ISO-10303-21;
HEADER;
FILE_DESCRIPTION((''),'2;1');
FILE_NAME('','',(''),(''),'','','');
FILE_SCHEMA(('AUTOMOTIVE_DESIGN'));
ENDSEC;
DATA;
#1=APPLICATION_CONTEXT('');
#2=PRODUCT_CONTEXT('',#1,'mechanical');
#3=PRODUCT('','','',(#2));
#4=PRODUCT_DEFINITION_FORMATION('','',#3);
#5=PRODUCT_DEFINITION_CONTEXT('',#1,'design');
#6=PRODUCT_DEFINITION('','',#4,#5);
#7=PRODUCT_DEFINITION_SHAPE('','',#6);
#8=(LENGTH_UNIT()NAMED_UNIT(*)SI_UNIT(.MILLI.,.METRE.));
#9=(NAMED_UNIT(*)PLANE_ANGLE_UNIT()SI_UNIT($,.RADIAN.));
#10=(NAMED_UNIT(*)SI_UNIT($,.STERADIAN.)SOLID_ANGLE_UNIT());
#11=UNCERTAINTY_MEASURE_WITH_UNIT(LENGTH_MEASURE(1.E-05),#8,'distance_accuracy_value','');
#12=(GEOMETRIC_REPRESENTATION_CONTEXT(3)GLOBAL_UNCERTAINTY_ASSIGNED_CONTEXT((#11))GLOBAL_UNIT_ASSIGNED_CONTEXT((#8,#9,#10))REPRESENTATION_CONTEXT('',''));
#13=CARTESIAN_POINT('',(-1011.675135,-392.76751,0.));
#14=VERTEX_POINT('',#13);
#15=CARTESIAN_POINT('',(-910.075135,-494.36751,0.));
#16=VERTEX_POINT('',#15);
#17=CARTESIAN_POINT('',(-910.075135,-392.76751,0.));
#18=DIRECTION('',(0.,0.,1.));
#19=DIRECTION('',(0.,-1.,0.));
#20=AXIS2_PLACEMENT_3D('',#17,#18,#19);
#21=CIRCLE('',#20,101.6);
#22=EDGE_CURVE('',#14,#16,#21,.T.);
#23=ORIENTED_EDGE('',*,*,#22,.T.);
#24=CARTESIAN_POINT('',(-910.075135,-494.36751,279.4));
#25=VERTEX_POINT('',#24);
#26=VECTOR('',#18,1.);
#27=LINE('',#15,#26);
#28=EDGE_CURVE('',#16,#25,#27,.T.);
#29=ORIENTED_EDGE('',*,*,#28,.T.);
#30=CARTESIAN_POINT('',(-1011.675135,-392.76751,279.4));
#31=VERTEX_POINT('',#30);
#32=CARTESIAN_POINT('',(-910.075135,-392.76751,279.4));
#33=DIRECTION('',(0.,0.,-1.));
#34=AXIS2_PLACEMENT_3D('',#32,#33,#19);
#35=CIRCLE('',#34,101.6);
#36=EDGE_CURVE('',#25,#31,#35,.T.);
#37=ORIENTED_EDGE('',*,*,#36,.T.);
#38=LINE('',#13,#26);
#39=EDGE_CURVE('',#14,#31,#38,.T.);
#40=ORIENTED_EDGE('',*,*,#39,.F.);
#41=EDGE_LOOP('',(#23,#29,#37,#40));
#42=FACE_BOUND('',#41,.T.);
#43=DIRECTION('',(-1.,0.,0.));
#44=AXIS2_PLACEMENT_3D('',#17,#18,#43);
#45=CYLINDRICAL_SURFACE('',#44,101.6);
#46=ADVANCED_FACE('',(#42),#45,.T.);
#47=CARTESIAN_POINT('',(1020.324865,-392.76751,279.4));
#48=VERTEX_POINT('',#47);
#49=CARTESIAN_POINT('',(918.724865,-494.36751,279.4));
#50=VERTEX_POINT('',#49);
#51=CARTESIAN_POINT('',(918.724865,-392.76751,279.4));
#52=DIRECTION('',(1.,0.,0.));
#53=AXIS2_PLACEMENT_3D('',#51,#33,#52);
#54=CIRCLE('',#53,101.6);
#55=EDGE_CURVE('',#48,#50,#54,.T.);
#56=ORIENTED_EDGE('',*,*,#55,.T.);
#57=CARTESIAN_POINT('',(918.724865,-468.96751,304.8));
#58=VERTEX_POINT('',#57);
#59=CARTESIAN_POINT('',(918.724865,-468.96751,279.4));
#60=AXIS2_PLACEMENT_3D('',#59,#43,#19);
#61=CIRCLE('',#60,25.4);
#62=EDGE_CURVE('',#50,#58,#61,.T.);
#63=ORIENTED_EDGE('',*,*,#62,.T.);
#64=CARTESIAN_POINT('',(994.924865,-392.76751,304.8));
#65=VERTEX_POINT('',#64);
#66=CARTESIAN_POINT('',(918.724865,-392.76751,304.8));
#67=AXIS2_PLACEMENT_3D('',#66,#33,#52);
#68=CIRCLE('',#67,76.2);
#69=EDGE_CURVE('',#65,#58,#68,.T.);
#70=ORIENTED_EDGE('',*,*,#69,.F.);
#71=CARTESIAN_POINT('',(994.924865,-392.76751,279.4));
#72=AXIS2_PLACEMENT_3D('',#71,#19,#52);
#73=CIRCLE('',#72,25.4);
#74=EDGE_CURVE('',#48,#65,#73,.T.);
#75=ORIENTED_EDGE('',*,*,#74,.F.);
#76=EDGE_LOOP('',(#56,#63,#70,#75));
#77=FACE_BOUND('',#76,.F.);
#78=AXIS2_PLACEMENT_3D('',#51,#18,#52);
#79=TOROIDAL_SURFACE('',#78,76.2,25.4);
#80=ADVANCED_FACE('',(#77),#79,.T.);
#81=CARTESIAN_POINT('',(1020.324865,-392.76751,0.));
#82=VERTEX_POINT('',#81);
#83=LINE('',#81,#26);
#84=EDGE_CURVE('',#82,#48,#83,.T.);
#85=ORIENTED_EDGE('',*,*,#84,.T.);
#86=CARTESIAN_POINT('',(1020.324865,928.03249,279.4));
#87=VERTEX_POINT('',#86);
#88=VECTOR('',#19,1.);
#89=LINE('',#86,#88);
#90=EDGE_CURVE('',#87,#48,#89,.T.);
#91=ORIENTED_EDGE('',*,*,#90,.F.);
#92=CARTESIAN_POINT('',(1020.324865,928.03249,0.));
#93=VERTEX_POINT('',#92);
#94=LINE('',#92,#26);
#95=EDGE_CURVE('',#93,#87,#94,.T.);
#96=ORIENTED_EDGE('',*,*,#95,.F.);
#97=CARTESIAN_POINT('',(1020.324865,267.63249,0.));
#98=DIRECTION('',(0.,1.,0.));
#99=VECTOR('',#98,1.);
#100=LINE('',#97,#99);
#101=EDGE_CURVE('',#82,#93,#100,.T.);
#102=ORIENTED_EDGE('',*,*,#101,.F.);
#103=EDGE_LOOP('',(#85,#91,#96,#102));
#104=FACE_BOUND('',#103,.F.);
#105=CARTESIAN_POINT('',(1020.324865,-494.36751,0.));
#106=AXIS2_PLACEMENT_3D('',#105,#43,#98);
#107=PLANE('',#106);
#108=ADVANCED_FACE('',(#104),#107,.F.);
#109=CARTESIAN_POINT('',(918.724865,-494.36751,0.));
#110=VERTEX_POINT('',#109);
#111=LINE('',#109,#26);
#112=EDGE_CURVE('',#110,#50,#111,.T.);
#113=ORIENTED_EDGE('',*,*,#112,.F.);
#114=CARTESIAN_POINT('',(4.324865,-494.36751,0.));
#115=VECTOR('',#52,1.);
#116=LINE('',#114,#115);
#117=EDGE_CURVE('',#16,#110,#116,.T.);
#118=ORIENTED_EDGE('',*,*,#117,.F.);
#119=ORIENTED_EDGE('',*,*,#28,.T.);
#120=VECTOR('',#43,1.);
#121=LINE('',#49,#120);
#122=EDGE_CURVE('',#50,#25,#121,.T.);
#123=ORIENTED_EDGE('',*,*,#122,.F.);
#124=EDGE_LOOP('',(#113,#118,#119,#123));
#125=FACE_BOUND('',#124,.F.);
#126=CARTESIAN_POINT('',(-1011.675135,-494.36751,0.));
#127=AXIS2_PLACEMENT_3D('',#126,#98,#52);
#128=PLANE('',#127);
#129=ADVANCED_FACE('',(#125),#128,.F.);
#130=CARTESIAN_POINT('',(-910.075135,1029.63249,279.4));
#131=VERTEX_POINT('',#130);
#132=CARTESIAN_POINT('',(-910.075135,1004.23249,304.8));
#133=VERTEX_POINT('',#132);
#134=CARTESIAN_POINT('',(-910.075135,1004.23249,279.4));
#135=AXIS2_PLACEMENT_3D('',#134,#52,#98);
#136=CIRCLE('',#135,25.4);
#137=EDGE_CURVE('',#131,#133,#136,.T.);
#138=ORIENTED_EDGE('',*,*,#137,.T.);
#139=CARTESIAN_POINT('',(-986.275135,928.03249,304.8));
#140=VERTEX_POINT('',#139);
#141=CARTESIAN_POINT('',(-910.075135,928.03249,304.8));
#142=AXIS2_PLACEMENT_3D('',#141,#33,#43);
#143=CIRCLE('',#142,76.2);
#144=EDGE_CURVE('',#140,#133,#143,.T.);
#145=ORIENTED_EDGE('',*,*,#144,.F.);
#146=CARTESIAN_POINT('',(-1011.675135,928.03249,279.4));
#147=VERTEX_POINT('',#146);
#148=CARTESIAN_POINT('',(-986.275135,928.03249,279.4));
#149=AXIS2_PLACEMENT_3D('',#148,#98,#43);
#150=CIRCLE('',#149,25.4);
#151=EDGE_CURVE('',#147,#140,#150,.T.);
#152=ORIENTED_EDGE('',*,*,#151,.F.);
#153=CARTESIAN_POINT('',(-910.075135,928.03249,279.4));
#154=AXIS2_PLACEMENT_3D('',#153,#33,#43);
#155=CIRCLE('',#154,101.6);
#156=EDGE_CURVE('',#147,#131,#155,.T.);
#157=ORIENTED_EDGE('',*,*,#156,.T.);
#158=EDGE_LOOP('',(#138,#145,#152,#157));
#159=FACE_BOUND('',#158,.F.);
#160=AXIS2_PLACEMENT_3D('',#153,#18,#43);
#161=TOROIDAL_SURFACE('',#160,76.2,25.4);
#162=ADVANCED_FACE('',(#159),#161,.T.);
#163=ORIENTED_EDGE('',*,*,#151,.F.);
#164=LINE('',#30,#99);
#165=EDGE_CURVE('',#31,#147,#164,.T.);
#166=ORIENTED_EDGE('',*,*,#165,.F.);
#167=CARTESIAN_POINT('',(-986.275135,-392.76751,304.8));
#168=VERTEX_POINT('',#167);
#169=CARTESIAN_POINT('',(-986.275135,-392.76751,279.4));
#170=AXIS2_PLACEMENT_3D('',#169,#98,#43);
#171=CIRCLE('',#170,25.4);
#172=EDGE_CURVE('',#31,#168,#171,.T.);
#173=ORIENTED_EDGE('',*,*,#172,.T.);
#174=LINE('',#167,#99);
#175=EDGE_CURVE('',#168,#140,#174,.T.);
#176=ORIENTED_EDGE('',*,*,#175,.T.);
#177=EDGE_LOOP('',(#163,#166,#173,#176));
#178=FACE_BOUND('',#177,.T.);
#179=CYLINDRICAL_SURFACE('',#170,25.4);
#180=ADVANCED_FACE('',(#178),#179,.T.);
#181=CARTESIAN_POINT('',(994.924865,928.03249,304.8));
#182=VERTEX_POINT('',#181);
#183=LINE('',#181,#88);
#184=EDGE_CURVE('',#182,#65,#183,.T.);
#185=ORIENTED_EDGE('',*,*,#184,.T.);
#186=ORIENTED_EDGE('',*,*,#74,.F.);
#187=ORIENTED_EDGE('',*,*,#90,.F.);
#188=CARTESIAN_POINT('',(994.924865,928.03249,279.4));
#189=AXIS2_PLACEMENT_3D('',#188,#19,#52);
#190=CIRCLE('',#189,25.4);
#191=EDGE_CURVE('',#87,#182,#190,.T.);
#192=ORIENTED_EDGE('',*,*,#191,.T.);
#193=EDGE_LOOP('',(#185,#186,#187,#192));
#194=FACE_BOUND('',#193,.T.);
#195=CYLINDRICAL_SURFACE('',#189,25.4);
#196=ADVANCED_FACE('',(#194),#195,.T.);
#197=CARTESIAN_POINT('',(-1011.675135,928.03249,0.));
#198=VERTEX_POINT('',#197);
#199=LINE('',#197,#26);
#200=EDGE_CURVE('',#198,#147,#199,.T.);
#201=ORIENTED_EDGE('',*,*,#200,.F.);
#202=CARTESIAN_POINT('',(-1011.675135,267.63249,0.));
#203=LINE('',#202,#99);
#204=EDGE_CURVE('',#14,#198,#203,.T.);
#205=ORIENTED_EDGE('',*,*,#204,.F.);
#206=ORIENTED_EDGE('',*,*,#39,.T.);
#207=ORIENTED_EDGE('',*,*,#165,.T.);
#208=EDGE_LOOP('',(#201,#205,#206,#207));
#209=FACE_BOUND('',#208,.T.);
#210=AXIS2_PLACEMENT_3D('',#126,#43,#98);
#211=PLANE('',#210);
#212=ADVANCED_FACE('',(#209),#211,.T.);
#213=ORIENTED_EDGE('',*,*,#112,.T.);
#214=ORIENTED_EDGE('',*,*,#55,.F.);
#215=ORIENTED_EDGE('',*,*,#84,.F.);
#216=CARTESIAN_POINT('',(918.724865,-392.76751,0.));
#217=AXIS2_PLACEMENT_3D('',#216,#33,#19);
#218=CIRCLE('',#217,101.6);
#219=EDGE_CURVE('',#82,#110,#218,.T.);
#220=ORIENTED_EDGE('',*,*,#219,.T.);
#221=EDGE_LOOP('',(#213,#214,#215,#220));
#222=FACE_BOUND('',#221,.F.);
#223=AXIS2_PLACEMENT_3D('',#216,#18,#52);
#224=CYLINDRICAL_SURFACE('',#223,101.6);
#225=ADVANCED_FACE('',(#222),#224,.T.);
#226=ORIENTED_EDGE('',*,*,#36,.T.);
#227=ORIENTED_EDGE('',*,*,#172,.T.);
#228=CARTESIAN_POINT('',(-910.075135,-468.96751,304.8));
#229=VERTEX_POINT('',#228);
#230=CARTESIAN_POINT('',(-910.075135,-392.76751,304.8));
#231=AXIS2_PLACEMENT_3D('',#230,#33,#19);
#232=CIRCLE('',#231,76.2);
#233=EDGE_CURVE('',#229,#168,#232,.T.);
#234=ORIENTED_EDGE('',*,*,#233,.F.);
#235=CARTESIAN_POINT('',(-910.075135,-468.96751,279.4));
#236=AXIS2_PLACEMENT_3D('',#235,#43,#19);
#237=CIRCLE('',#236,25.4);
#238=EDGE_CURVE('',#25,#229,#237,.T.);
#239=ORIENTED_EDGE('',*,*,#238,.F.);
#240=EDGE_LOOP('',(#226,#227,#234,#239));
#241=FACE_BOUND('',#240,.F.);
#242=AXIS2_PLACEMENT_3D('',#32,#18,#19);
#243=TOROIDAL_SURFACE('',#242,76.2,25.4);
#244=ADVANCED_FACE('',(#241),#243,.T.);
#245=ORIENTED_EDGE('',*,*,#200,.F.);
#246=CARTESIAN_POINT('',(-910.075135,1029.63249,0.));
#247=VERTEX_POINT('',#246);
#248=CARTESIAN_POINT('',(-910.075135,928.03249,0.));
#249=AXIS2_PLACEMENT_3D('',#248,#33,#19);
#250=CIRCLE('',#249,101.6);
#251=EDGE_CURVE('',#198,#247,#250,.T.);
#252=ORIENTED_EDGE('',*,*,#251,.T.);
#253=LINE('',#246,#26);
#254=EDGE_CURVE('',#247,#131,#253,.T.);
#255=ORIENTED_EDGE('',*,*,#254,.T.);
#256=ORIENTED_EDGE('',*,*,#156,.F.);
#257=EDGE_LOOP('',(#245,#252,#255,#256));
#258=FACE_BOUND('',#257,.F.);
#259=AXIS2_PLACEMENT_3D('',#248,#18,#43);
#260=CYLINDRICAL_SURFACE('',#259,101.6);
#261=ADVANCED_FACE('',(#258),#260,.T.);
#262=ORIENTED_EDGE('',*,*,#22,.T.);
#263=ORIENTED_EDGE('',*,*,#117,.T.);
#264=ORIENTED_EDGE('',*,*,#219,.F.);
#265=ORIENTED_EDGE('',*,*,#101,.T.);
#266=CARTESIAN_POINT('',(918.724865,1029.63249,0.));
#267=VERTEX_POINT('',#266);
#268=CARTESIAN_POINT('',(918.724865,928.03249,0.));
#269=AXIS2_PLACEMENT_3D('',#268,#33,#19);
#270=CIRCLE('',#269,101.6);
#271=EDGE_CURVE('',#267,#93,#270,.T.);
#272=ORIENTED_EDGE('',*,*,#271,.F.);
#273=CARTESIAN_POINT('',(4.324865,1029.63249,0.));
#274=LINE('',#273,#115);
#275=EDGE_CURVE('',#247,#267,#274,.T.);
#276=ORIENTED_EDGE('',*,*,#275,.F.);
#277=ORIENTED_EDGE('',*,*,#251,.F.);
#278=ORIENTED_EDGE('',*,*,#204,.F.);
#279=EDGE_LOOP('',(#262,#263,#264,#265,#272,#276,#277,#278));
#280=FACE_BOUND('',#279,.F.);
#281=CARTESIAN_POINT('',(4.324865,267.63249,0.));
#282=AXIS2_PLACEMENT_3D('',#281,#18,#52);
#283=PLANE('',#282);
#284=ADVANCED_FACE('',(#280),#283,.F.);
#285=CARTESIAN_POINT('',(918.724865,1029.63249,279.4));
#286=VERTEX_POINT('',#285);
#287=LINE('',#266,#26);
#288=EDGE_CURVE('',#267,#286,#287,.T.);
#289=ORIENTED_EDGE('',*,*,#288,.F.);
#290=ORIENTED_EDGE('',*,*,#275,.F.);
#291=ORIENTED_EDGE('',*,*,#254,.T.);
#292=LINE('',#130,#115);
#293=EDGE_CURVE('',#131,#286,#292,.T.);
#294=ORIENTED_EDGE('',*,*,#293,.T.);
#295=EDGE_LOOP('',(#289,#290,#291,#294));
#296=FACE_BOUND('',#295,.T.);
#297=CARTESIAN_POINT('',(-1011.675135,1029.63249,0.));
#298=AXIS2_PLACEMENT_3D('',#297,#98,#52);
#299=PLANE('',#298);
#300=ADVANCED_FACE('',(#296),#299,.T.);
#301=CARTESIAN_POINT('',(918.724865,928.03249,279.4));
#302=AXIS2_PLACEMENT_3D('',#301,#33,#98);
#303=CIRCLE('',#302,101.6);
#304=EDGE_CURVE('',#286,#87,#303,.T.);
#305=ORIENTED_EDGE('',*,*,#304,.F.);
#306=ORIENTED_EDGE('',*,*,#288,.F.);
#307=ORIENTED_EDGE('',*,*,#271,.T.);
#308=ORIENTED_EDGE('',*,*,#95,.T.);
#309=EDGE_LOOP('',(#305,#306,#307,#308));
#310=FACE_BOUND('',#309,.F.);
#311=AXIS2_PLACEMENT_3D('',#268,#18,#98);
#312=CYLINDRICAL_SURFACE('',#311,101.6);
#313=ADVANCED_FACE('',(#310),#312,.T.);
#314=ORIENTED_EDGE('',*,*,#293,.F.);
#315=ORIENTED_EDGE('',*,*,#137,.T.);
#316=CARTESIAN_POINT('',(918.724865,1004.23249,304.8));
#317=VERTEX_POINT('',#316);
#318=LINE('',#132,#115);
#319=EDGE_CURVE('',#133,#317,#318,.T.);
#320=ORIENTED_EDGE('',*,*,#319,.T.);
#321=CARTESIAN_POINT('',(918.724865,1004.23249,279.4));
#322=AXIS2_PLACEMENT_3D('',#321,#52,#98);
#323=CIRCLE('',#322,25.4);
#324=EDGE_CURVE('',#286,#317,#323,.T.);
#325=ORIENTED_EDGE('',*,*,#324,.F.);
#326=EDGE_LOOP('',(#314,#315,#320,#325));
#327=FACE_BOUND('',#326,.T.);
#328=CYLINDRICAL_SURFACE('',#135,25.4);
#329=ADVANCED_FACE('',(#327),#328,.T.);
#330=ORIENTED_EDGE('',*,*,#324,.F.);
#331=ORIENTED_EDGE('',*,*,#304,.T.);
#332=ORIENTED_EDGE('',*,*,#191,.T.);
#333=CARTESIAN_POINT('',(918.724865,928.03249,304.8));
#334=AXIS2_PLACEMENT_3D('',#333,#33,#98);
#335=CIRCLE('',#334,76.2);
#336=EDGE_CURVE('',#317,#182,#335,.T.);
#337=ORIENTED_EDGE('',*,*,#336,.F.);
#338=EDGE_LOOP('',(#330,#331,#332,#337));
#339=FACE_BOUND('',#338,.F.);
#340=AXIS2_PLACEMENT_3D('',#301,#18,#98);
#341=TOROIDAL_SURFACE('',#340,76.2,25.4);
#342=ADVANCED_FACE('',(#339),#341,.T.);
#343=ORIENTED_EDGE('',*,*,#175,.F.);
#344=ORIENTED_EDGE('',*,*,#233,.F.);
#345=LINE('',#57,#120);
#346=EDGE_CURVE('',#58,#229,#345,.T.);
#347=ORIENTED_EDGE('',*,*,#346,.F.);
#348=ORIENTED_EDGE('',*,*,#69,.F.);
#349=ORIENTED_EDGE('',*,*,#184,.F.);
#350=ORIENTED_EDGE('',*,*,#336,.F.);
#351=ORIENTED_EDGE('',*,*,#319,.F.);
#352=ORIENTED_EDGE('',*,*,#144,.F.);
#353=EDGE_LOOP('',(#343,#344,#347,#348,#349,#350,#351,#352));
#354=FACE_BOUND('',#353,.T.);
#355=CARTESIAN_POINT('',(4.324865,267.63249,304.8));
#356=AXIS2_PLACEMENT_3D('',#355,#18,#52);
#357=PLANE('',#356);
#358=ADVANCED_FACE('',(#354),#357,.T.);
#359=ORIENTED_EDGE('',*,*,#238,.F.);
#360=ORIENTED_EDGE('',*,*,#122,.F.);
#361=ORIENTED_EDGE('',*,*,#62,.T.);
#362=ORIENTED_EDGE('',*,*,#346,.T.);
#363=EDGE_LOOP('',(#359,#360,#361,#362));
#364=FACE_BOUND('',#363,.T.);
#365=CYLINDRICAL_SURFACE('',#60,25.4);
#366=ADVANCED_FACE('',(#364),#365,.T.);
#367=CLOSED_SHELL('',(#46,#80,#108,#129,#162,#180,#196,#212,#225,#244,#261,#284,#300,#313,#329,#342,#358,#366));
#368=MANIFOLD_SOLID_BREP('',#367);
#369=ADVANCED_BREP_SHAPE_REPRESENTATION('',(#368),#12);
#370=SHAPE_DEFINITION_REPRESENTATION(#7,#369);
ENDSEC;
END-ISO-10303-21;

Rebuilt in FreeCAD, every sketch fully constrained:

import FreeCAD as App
import Part
import Sketcher
Q = App.Units.Quantity


def edges_at(feature, points):
    """Names of the edges that pass closest to the given points."""
    edges = feature.Shape.Edges
    near = lambda p: min(range(len(edges)), key=lambda i: edges[i].distToShape(Part.Vertex(*p))[0])
    return sorted({f"Edge{near(p) + 1}" for p in points})

doc = App.newDocument("Part")
params = doc.addObject("Spreadsheet::Sheet", "Params")
for row, (alias, value) in enumerate([
    ("sketch1_width", "80 in"),
    ("sketch1_height", "60 in"),
    ("pad1_length", "12 in"),
    ("fillet_radius", "4 in"),
    ("fillet2_radius", "4 in"),
    ("fillet3_radius", "4 in"),
    ("fillet4_radius", "4 in"),
    ("fillet5_radius", "1 in"),
], start=1):
    params.set(f"A{row}", alias)
    params.set(f"B{row}", "=" + value)
    params.setAlias(f"B{row}", alias)

body = doc.addObject("PartDesign::Body", "Body")

# Sketch on XY plane
sketch1 = body.newObject("Sketcher::SketchObject", "Sketch")
sketch1.AttachmentSupport = (doc.getObject("XY_Plane"), [""])
sketch1.MapMode = "FlatFace"
sketch1.addGeometry(Part.LineSegment(App.Vector(-1012, 1030, 0), App.Vector(-1012, -494, 0)), False)
sketch1.addGeometry(Part.LineSegment(App.Vector(-1012, -494, 0), App.Vector(1020, -494, 0)), False)
sketch1.addGeometry(Part.LineSegment(App.Vector(1020, -494, 0), App.Vector(1020, 1030, 0)), False)
sketch1.addGeometry(Part.LineSegment(App.Vector(1020, 1030, 0), App.Vector(-1012, 1030, 0)), False)
sketch1.addConstraint(Sketcher.Constraint("Coincident", 0, 2, 1, 1))
sketch1.addConstraint(Sketcher.Constraint("Coincident", 1, 2, 2, 1))
sketch1.addConstraint(Sketcher.Constraint("Coincident", 2, 2, 3, 1))
sketch1.addConstraint(Sketcher.Constraint("Coincident", 3, 2, 0, 1))
sketch1.addConstraint(Sketcher.Constraint("Vertical", 0))
sketch1.addConstraint(Sketcher.Constraint("Horizontal", 1))
sketch1.addConstraint(Sketcher.Constraint("Vertical", 2))
sketch1.addConstraint(Sketcher.Constraint("Horizontal", 3))
sketch1.addConstraint(Sketcher.Constraint("DistanceX", 1, 1, 1, 2, Q("80 in")))
sketch1.addConstraint(Sketcher.Constraint("DistanceY", 0, 2, 0, 1, Q("60 in")))
sketch1.addConstraint(Sketcher.Constraint("DistanceY", 0, 2, -1, 1, 494.36751))
sketch1.addConstraint(Sketcher.Constraint("DistanceX", 0, 2, -1, 1, 1011.675135))
sketch1.setExpression("Constraints[8]", "Params.sketch1_width")
sketch1.setExpression("Constraints[9]", "Params.sketch1_height")
pad1 = body.newObject("PartDesign::Pad", "Pad")
pad1.Profile = sketch1
pad1.setExpression("Length", "Params.pad1_length")
doc.recompute()

fillet = body.newObject("PartDesign::Fillet", "Fillet")
fillet.Base = (pad1, edges_at(pad1, [(-1011.675, -494.368, 152.4)]))
fillet.setExpression("Radius", "Params.fillet_radius")
doc.recompute()

fillet2 = body.newObject("PartDesign::Fillet", "Fillet001")
fillet2.Base = (fillet, edges_at(fillet, [(-1011.675, 1029.632, 152.4)]))
fillet2.setExpression("Radius", "Params.fillet2_radius")
doc.recompute()

fillet3 = body.newObject("PartDesign::Fillet", "Fillet002")
fillet3.Base = (fillet2, edges_at(fillet2, [(1020.325, 1029.632, 152.4)]))
fillet3.setExpression("Radius", "Params.fillet3_radius")
doc.recompute()

fillet4 = body.newObject("PartDesign::Fillet", "Fillet003")
fillet4.Base = (fillet3, edges_at(fillet3, [(1020.325, -494.368, 152.4)]))
fillet4.setExpression("Radius", "Params.fillet4_radius")
doc.recompute()

fillet5 = body.newObject("PartDesign::Fillet", "Fillet004")
fillet5.Base = (fillet4, edges_at(fillet4, [
    (-1011.675, 267.632, 304.8),
    (4.325, 1029.632, 304.8),
    (4.325, -494.368, 304.8),
    (1020.325, 267.632, 304.8),
]))
fillet5.setExpression("Radius", "Params.fillet5_radius")

doc.recompute()
